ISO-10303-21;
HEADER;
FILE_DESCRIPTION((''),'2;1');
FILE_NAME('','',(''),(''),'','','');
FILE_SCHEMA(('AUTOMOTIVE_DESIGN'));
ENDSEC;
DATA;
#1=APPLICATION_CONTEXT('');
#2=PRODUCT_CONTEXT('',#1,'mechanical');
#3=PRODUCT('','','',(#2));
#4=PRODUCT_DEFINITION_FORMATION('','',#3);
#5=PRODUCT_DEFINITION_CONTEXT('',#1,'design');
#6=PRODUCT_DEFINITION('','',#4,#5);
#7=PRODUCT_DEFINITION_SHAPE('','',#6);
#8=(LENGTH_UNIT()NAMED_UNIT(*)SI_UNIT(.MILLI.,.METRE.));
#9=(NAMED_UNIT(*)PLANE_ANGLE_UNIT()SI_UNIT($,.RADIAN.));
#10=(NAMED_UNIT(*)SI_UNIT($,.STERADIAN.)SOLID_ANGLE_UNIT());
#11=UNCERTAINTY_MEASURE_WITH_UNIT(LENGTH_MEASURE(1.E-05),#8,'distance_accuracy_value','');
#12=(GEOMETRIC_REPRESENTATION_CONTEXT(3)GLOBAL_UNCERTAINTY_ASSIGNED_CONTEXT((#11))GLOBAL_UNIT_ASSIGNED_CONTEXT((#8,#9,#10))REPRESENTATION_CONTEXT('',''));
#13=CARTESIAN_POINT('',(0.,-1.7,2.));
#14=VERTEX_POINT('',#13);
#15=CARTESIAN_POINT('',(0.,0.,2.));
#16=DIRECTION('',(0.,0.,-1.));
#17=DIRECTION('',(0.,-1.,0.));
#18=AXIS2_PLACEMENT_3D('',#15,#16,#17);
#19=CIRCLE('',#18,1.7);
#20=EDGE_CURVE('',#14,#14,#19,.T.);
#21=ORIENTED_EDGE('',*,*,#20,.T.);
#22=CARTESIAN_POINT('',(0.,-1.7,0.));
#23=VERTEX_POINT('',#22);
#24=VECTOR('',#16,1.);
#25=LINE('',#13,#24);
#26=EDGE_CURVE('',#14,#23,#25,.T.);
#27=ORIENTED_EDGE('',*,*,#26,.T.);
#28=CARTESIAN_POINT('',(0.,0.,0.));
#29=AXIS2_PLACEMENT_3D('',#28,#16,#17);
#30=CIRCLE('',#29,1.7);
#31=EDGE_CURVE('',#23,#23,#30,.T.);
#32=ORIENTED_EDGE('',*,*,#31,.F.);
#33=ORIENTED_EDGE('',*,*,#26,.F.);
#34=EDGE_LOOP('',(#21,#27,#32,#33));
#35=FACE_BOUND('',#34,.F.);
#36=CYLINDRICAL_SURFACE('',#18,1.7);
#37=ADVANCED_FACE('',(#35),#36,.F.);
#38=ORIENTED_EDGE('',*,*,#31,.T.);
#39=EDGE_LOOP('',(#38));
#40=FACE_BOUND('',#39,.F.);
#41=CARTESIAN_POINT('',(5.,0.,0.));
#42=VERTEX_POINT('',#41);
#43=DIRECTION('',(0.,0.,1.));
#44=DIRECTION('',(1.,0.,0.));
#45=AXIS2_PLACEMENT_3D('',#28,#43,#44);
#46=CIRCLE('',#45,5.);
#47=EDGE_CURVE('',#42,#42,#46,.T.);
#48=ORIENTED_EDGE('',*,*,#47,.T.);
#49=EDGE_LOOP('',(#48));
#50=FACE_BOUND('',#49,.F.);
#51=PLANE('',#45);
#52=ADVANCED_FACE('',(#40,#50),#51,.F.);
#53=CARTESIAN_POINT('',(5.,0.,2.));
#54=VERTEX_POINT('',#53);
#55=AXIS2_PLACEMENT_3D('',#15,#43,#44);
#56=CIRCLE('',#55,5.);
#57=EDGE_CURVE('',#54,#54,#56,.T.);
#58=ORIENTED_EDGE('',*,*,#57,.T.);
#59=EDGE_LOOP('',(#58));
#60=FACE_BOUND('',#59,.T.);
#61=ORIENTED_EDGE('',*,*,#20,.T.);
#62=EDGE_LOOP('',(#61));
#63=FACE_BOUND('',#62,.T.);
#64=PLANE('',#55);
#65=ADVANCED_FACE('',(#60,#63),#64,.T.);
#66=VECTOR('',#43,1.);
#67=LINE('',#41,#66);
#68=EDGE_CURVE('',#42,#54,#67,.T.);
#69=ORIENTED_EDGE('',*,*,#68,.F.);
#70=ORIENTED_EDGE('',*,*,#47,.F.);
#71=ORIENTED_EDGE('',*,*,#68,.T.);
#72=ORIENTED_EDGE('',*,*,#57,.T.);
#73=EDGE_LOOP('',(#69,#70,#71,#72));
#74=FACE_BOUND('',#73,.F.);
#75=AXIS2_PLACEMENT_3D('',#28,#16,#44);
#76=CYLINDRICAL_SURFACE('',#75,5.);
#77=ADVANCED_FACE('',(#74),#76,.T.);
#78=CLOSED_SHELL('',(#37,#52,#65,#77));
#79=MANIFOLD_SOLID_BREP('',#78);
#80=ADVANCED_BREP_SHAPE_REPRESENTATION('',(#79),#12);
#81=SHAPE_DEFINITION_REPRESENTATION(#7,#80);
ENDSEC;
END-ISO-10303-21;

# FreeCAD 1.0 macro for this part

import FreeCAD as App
import Part
import Sketcher

doc = App.newDocument("Part")
body = doc.addObject("PartDesign::Body", "Body")

# Sketch on XY plane
sketch1 = doc.addObject("Sketcher::SketchObject", "Sketch")
body.addObject(sketch1)
sketch1.AttachmentSupport = (doc.XY_Plane, [""])
sketch1.MapMode = "FlatFace"
sketch1.addGeometry(Part.Circle(App.Vector(0, 0, 0), App.Vector(0, 0, 1), 5), False)
sketch1.addConstraint(Sketcher.Constraint("Coincident", 0, 3, -1, 1))
sketch1.addConstraint(Sketcher.Constraint("Diameter", 0, 10.0))
pad1 = doc.addObject("PartDesign::Pad", "Pad")
body.addObject(pad1)
pad1.Profile = sketch1
pad1.Length = 2

# Sketch on XY plane
sketch2 = doc.addObject("Sketcher::SketchObject", "Sketch001")
body.addObject(sketch2)
sketch2.AttachmentSupport = (doc.XY_Plane, [""])
sketch2.MapMode = "FlatFace"
sketch2.AttachmentOffset = App.Placement(App.Vector(0, 0, 2), App.Rotation())
sketch2.addGeometry(Part.Circle(App.Vector(0, 0, 0), App.Vector(0, 0, 1), 1.7), False)
sketch2.addConstraint(Sketcher.Constraint("Coincident", 0, 3, -1, 1))
sketch2.addConstraint(Sketcher.Constraint("Diameter", 0, 3.4))
doc.recompute()
hole = doc.addObject("PartDesign::Hole", "Hole")
body.addObject(hole)
hole.Profile = sketch2
hole.ThreadType = "None"
hole.Diameter = 3.4
hole.DepthType = "ThroughAll"

doc.recompute()
